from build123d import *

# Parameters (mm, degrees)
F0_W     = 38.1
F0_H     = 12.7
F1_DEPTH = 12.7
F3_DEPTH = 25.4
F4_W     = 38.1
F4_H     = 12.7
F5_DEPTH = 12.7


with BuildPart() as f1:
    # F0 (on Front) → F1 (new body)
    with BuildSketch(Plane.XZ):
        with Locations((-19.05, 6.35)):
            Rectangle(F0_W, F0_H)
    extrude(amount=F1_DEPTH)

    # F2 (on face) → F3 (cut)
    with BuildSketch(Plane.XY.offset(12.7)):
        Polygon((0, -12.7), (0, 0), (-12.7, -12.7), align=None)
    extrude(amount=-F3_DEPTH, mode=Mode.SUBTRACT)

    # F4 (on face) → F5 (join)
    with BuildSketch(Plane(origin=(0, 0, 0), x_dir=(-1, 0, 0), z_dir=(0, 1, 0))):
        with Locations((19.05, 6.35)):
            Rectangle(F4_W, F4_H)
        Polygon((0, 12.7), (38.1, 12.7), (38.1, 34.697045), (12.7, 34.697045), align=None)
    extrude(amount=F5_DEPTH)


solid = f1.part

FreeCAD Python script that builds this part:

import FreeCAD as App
import Part
import Sketcher
Q = App.Units.Quantity


def add_polygon(sketch, points):
    """Adds a closed chain of lines whose ends are joined by coincident constraints."""
    first, n = sketch.GeometryCount, len(points)
    for a, b in zip(points, points[1:] + points[:1]):
        sketch.addGeometry(Part.LineSegment(App.Vector(*a, 0), App.Vector(*b, 0)), False)
    for i in range(n):
        sketch.addConstraint(Sketcher.Constraint("Coincident", first + i, 2, first + (i + 1) % n, 1))

doc = App.newDocument("Part")
body = doc.addObject("PartDesign::Body", "Body")

sketch1 = body.newObject("Sketcher::SketchObject", "Sketch")
sketch1.AttachmentSupport = (doc.getObject("XZ_Plane"), [""])
sketch1.MapMode = "FlatFace"
add_polygon(sketch1, [(-38.1, 12.7), (-38.1, 0), (0, 0), (0, 12.7)])
sketch1.addConstraint(Sketcher.Constraint("Vertical", 0))
sketch1.addConstraint(Sketcher.Constraint("Horizontal", 1))
sketch1.addConstraint(Sketcher.Constraint("Vertical", 2))
sketch1.addConstraint(Sketcher.Constraint("Horizontal", 3))
sketch1.addConstraint(Sketcher.Constraint("Coincident", 1, 2, -1, 1))
sketch1.addConstraint(Sketcher.Constraint("DistanceX", 1, 1, 1, 2, Q("1.5 in")))
sketch1.addConstraint(Sketcher.Constraint("DistanceY", 0, 2, 0, 1, Q("0.5 in")))
pad1 = body.newObject("PartDesign::Pad", "Pad")
pad1.Profile = sketch1
pad1.Length = Q("0.5 in")

sketch2 = body.newObject("Sketcher::SketchObject", "Sketch001")
sketch2.AttachmentSupport = (doc.getObject("XY_Plane"), [""])
sketch2.MapMode = "FlatFace"
sketch2.AttachmentOffset = App.Placement(App.Vector(0, 0, 0.5 * 25.4), App.Rotation())
add_polygon(sketch2, [(0, -12.7), (0, 0), (-12.7, -12.7)])
sketch2.addConstraint(Sketcher.Constraint("Vertical", 0))
sketch2.addConstraint(Sketcher.Constraint("Horizontal", 2))
sketch2.addConstraint(Sketcher.Constraint("Coincident", 0, 2, -1, 1))
sketch2.addConstraint(Sketcher.Constraint("Equal", 2, 0))
sketch2.addConstraint(Sketcher.Constraint("DistanceX", 2, 1, 2, 2, Q("0.5 in")))
pocket1 = body.newObject("PartDesign::Pocket", "Pocket")
pocket1.Profile = sketch2
pocket1.Length = Q("1 in")

sketch3 = body.newObject("Sketcher::SketchObject", "Sketch002")
sketch3.AttachmentSupport = (doc.getObject("XZ_Plane"), [""])
sketch3.MapMode = "FlatFace"
add_polygon(sketch3, [(0, 12.7), (0, 0), (-38.1, 0), (-38.1, 34.697045), (-12.7, 34.697045)])
sketch3.addConstraint(Sketcher.Constraint("Vertical", 0))
sketch3.addConstraint(Sketcher.Constraint("Horizontal", 1))
sketch3.addConstraint(Sketcher.Constraint("Vertical", 2))
sketch3.addConstraint(Sketcher.Constraint("Horizontal", 3))
sketch3.addConstraint(Sketcher.Constraint("Coincident", 0, 2, -1, 1))
sketch3.addConstraint(Sketcher.Constraint("DistanceX", 3, 1, 3, 2, Q("1 in")))
sketch3.addConstraint(Sketcher.Constraint("Distance", 4, Q("1 in")))
sketch3.addConstraint(Sketcher.Constraint("DistanceX", 1, 2, 1, 1, Q("1.5 in")))
sketch3.addConstraint(Sketcher.Constraint("DistanceY", 0, 2, 0, 1, Q("0.5 in")))
pad2 = body.newObject("PartDesign::Pad", "Pad001")
pad2.Profile = sketch3
pad2.Length = Q("0.5 in")
pad2.Reversed = True

doc.recompute()
